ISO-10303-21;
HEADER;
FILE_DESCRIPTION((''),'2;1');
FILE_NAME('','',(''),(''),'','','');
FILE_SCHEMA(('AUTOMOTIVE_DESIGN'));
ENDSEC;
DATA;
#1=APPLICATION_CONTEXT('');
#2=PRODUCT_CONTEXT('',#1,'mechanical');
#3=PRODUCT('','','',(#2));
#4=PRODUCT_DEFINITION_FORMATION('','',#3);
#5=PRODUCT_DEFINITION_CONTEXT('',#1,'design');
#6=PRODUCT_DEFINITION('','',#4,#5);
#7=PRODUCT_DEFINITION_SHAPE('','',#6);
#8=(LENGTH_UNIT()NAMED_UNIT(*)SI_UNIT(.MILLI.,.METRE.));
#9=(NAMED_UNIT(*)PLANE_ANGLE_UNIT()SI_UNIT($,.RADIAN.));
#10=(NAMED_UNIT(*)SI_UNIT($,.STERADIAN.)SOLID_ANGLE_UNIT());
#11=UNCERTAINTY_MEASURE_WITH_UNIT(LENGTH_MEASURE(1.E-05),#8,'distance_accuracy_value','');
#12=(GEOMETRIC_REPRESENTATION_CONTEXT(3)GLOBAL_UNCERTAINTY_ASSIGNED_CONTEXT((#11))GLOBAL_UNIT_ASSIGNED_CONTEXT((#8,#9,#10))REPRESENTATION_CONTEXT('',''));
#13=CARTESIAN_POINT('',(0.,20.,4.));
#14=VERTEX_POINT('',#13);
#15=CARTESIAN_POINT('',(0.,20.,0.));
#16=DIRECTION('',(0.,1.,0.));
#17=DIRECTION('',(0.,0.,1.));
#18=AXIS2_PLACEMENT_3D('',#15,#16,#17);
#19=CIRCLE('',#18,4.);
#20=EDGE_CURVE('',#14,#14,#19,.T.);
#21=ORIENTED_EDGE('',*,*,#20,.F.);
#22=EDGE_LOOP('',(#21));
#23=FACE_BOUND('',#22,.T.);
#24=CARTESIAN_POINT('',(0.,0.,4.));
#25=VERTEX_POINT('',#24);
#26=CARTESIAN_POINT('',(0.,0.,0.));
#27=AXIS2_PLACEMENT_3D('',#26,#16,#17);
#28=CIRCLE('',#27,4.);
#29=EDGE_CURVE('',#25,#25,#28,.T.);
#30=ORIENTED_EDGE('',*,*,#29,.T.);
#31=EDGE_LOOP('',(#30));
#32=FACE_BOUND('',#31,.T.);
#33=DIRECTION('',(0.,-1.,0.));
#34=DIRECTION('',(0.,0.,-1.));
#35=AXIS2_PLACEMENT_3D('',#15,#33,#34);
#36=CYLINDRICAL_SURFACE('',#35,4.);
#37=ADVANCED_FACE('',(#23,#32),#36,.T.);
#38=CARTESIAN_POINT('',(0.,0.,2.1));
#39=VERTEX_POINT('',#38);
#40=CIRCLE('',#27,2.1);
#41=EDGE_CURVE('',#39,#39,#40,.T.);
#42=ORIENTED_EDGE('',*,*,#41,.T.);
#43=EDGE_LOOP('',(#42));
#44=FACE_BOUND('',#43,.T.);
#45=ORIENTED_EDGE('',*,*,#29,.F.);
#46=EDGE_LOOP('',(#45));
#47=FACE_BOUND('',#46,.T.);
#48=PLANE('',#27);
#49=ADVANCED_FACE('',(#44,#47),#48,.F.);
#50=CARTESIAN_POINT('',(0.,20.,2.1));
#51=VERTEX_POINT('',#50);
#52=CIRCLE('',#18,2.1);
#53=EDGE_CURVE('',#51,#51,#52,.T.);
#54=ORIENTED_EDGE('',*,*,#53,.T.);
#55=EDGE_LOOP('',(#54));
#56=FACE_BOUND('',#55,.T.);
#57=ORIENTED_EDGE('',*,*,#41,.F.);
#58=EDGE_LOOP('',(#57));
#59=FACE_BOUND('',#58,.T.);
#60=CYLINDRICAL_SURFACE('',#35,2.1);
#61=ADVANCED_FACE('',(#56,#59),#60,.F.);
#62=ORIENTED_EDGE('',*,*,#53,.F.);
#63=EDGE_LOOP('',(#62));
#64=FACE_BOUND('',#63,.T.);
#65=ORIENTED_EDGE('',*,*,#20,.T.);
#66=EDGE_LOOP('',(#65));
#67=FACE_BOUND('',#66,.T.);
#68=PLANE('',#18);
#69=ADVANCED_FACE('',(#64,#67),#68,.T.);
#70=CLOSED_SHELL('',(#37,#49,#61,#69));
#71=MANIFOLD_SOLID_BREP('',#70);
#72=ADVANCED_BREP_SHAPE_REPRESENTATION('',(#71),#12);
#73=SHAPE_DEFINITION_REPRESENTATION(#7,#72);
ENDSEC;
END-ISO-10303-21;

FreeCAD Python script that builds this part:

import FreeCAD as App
import Part
import Sketcher
from FreeCAD import Vector

doc = App.newDocument("Part")
body = doc.addObject("PartDesign::Body", "Body")

sketch1 = body.newObject("Sketcher::SketchObject", "Sketch")
sketch1.AttachmentSupport = (doc.getObject("XZ_Plane"), [""])
sketch1.MapMode = "FlatFace"
sketch1.addGeometry(Part.Circle(Vector(0, 0, 0), Vector(0, 0, 1), 4), False)
sketch1.addGeometry(Part.Circle(Vector(0, 0, 0), Vector(0, 0, 1), 2.1), False)
sketch1.addConstraint(Sketcher.Constraint("Coincident", 0, 3, -1, 1))
sketch1.addConstraint(Sketcher.Constraint("Coincident", 1, 3, -1, 1))
sketch1.addConstraint(Sketcher.Constraint("Diameter", 0, 8.0))
sketch1.addConstraint(Sketcher.Constraint("Diameter", 1, 4.2))
pad1 = body.newObject("PartDesign::Pad", "Pad")
pad1.Profile = sketch1
pad1.Length = 20
pad1.Reversed = True

doc.recompute()
